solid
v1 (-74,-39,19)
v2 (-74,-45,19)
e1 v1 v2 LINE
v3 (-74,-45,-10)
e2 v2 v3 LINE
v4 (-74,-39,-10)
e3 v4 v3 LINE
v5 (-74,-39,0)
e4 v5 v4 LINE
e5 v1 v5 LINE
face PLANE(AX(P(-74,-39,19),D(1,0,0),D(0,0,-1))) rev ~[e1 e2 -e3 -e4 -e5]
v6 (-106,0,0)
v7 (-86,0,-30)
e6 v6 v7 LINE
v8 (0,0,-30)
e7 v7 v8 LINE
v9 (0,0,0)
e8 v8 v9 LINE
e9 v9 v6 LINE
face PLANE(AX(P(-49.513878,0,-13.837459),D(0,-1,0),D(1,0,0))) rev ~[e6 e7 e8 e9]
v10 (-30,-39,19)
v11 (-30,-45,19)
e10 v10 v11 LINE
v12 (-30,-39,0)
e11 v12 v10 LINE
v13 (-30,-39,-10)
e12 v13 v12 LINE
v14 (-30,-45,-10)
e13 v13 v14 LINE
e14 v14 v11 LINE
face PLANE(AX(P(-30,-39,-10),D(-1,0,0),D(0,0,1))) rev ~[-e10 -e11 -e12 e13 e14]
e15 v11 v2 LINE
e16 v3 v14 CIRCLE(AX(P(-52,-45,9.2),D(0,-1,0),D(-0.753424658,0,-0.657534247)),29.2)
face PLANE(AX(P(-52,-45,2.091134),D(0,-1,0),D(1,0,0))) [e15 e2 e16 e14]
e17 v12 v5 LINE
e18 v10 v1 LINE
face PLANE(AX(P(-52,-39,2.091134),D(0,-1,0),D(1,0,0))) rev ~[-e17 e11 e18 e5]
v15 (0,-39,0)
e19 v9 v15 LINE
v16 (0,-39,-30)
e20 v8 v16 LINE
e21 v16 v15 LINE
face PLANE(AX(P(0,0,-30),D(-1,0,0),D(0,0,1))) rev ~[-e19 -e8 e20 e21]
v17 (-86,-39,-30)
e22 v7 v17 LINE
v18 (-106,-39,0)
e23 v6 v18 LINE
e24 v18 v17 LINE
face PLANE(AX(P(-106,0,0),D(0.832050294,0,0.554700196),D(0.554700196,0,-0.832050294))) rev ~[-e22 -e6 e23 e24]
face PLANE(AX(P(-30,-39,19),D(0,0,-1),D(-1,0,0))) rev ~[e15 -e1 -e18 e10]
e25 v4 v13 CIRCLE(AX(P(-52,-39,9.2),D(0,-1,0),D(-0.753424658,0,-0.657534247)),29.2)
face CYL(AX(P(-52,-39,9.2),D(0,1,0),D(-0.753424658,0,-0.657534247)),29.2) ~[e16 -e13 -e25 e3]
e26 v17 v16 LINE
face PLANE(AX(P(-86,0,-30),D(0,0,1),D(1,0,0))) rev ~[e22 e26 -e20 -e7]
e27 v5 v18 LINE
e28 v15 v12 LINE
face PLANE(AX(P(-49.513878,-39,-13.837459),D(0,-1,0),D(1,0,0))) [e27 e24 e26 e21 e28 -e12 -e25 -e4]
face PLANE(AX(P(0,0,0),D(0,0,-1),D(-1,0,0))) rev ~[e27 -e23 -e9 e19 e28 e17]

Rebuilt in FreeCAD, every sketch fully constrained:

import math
import FreeCAD as App
import Part
import Sketcher

V = App.Vector

doc = App.newDocument("Part")
body = doc.addObject("PartDesign::Body", "Body")

sketch1 = body.newObject("Sketcher::SketchObject", "Sketch")
sketch1.AttachmentSupport = (doc.getObject("XZ_Plane"), [""])
sketch1.MapMode = "FlatFace"
sketch1.addGeometry([
    Part.LineSegment(V(0, -30, 0), V(0, 0, 0)),
    Part.LineSegment(V(0, 0, 0), V(-106, 0, 0)),
    Part.LineSegment(V(-106, 0, 0), V(-86, -30, 0)),
    Part.LineSegment(V(-86, -30, 0), V(0, -30, 0)),
], False)
sketch1.addConstraint([
    Sketcher.Constraint("Coincident", 0, 2, 1, 1),
    Sketcher.Constraint("Coincident", 1, 2, 2, 1),
    Sketcher.Constraint("Coincident", 2, 2, 3, 1),
    Sketcher.Constraint("Coincident", 3, 2, 0, 1),
    Sketcher.Constraint("Vertical", 0),
    Sketcher.Constraint("Horizontal", 1),
    Sketcher.Constraint("Horizontal", 3),
    Sketcher.Constraint("Coincident", 0, 2, -1, 1),
    Sketcher.Constraint("DistanceX", 1, 2, 1, 1, 106.0),
    Sketcher.Constraint("DistanceX", 3, 1, 3, 2, 86.0),
    Sketcher.Constraint("DistanceY", 0, 1, 0, 2, 30.0),
])
pad1 = body.newObject("PartDesign::Pad", "Pad")
pad1.Profile = sketch1
pad1.Length = 39

sketch2 = body.newObject("Sketcher::SketchObject", "Sketch001")
sketch2.AttachmentSupport = (doc.getObject("XZ_Plane"), [""])
sketch2.MapMode = "FlatFace"
sketch2.AttachmentOffset = App.Placement(V(0, 0, 39), App.Rotation())
sketch2.addGeometry([
    Part.LineSegment(V(-74, 19, 0), V(-74, -10, 0)),
    Part.ArcOfCircle(Part.Circle(V(-52, 9, 0), V(0, 0, 1), 29), math.radians(-139), math.radians(-41)),
    Part.LineSegment(V(-30, -10, 0), V(-30, 19, 0)),
    Part.LineSegment(V(-30, 19, 0), V(-74, 19, 0)),
], False)
sketch2.addConstraint([
    Sketcher.Constraint("Coincident", 0, 2, 1, 1),
    Sketcher.Constraint("Coincident", 1, 2, 2, 1),
    Sketcher.Constraint("Coincident", 2, 2, 3, 1),
    Sketcher.Constraint("Coincident", 3, 2, 0, 1),
    Sketcher.Constraint("Vertical", 0),
    Sketcher.Constraint("Vertical", 2),
    Sketcher.Constraint("Horizontal", 3),
    Sketcher.Constraint("Horizontal", 0, 2, 1, 2),
    Sketcher.Constraint("Radius", 1, 29.2),
    Sketcher.Constraint("DistanceX", 3, 2, 3, 1, 44.0),
    Sketcher.Constraint("DistanceY", 0, 2, 0, 1, 29.0),
    Sketcher.Constraint("DistanceX", 1, 3, -1, 1, 52.0),
    Sketcher.Constraint("DistanceY", 0, 2, -1, 1, 10.0),
])
pad2 = body.newObject("PartDesign::Pad", "Pad001")
pad2.Profile = sketch2
pad2.Length = 6

doc.recompute()
